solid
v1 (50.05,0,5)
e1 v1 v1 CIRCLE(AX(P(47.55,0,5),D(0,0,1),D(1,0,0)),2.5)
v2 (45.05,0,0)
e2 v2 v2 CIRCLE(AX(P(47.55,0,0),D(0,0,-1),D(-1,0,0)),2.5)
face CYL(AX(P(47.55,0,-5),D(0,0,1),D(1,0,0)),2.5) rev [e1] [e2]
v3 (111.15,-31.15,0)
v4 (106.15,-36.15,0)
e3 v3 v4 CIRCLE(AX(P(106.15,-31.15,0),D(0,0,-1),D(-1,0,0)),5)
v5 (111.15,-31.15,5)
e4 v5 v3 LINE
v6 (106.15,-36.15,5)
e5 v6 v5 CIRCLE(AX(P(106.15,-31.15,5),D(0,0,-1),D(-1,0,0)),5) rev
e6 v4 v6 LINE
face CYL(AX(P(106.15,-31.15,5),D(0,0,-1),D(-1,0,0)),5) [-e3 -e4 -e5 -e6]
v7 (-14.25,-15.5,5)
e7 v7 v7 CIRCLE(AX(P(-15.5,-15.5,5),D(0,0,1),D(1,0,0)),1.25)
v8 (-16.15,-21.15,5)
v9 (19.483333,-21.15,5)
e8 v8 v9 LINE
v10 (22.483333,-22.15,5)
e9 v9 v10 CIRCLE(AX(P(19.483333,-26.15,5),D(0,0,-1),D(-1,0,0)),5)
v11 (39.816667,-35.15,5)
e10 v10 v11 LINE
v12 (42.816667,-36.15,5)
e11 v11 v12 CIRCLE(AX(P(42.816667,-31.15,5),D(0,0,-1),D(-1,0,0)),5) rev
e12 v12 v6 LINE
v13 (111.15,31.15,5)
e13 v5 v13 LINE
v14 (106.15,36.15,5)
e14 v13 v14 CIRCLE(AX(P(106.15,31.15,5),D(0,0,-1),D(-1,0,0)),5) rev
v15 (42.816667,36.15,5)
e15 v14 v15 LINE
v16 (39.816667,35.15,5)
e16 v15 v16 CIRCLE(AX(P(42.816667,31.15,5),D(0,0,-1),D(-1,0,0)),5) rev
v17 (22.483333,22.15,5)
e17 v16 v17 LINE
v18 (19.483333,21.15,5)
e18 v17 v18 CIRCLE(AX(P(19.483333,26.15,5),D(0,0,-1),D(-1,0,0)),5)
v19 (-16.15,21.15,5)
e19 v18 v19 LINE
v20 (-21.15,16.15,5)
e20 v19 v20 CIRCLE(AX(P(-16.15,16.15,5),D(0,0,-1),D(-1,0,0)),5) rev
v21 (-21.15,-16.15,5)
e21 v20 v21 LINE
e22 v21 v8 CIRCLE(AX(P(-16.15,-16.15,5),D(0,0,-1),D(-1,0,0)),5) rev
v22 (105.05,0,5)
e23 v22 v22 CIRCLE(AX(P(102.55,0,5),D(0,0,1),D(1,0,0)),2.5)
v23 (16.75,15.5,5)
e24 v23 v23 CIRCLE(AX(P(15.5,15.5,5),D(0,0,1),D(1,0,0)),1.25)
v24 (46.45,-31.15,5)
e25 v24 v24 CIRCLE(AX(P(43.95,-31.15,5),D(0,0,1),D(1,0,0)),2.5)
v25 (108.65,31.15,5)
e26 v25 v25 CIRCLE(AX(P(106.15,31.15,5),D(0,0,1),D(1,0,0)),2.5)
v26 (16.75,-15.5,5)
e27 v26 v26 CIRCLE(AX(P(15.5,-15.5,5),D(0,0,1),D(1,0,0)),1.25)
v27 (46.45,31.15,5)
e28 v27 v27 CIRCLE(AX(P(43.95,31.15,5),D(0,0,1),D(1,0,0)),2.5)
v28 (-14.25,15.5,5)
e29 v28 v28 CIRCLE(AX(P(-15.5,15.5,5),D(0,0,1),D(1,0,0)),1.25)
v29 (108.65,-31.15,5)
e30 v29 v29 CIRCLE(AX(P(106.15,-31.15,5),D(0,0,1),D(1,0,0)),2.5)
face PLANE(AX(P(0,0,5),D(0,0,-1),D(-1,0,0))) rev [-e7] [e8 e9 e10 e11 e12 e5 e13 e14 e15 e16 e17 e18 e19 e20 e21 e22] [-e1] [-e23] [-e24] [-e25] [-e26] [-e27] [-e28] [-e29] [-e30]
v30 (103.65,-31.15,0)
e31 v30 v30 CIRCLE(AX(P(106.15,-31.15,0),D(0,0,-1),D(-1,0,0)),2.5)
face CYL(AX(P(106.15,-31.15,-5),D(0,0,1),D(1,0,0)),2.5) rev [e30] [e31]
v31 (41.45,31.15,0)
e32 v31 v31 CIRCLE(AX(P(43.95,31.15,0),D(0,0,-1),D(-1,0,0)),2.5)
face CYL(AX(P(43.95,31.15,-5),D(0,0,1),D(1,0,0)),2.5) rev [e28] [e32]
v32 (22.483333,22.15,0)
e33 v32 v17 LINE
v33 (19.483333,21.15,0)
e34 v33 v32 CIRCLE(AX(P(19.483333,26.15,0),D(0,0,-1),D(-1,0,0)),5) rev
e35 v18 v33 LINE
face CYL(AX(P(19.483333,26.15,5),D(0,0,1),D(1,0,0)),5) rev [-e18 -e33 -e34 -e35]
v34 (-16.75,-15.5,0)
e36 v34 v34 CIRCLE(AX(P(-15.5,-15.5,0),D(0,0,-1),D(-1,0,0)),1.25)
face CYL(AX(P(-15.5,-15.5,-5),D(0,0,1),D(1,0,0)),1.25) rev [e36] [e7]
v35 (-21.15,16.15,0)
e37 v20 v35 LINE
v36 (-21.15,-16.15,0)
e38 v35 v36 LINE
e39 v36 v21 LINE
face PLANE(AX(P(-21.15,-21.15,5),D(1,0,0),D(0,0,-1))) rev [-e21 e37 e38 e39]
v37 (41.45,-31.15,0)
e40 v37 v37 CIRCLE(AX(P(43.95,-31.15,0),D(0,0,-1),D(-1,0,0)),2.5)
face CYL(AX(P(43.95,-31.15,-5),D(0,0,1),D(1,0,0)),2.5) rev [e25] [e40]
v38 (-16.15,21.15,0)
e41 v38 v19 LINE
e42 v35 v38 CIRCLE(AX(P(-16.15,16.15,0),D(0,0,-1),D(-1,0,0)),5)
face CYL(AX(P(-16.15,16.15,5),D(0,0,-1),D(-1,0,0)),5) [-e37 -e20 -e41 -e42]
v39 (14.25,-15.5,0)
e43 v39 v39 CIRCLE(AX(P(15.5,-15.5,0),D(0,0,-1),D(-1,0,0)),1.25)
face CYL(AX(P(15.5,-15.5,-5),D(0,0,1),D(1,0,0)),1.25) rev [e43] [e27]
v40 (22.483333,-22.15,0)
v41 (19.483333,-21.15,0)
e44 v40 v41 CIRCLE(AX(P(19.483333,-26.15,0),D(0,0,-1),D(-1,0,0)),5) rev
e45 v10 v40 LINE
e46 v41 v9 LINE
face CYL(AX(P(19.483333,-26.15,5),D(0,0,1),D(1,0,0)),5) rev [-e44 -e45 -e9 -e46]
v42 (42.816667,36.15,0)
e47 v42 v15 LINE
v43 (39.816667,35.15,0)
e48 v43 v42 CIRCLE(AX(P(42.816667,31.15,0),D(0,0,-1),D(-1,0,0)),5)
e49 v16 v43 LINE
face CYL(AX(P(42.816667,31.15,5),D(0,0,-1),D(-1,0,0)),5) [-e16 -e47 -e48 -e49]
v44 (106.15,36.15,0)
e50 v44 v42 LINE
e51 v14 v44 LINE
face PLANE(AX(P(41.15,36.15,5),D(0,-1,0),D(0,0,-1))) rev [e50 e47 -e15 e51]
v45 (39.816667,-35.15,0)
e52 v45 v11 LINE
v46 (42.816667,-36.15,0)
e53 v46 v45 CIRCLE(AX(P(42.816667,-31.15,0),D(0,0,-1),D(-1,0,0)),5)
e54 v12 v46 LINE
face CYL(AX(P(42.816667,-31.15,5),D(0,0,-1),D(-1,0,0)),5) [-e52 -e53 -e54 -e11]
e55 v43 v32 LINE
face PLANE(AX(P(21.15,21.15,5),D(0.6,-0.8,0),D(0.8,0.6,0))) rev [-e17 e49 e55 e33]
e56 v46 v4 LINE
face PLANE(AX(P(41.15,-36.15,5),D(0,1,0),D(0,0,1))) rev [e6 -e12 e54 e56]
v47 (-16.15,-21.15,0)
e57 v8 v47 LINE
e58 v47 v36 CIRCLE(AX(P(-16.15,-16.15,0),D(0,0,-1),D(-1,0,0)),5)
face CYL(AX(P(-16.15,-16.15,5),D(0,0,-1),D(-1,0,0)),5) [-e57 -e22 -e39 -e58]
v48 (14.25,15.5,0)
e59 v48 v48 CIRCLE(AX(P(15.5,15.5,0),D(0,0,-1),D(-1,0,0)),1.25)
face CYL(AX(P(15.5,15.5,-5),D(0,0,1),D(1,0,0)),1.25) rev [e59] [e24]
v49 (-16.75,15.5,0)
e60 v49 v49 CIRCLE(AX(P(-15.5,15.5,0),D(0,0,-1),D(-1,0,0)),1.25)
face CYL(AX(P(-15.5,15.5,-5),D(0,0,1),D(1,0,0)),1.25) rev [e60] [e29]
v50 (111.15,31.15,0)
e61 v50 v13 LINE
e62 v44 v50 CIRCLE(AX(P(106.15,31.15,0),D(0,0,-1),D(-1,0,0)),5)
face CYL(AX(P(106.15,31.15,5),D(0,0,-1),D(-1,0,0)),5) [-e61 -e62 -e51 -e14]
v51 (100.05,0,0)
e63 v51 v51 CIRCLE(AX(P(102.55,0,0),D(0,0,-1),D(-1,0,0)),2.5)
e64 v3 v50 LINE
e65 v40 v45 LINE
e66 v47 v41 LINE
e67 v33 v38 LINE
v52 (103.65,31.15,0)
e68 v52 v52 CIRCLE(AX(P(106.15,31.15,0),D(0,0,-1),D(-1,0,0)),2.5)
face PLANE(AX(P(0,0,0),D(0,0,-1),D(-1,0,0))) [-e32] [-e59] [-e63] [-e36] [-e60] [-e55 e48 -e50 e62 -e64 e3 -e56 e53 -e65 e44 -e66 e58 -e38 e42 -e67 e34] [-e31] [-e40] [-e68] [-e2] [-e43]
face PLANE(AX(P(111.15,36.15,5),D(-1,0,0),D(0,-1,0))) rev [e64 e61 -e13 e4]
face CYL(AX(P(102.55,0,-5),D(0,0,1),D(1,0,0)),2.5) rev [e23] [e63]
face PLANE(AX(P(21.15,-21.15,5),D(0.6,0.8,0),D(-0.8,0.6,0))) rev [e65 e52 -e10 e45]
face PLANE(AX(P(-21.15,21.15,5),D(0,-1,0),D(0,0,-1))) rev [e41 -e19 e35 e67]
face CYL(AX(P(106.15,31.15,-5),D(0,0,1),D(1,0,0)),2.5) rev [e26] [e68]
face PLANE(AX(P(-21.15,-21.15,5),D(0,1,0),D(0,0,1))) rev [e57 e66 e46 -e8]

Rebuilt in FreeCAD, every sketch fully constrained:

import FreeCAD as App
import Part
import Sketcher
from FreeCAD import Vector


def edges_at(feature, points):
    """Names of the edges that pass closest to the given points."""
    edges = feature.Shape.Edges
    near = lambda p: min(range(len(edges)), key=lambda i: edges[i].distToShape(Part.Vertex(*p))[0])
    return sorted({f"Edge{near(p) + 1}" for p in points})

doc = App.newDocument("Part")
body = doc.addObject("PartDesign::Body", "Body")

# Sketch on XY plane
sketch1 = body.newObject("Sketcher::SketchObject", "Sketch")
sketch1.AttachmentSupport = (doc.getObject("XY_Plane"), [""])
sketch1.MapMode = "FlatFace"
sketch1.addGeometry([
    Part.LineSegment(Vector(41, 36, 0), Vector(21, 21, 0)),  # 0
    Part.LineSegment(Vector(21, 21, 0), Vector(-21, 21, 0)),  # 1
    Part.LineSegment(Vector(-21, 21, 0), Vector(-21, -21, 0)),  # 2
    Part.LineSegment(Vector(-21, -21, 0), Vector(21, -21, 0)),  # 3
    Part.LineSegment(Vector(21, -21, 0), Vector(41, -36, 0)),  # 4
    Part.LineSegment(Vector(41, -36, 0), Vector(111, -36, 0)),  # 5
    Part.LineSegment(Vector(111, -36, 0), Vector(111, 36, 0)),  # 6
    Part.LineSegment(Vector(111, 36, 0), Vector(41, 36, 0)),  # 7
], False)
sketch1.addConstraint([
    Sketcher.Constraint("Coincident", 0, 2, 1, 1),
    Sketcher.Constraint("Coincident", 1, 2, 2, 1),
    Sketcher.Constraint("Coincident", 2, 2, 3, 1),
    Sketcher.Constraint("Coincident", 3, 2, 4, 1),
    Sketcher.Constraint("Coincident", 4, 2, 5, 1),
    Sketcher.Constraint("Coincident", 5, 2, 6, 1),
    Sketcher.Constraint("Coincident", 6, 2, 7, 1),
    Sketcher.Constraint("Coincident", 7, 2, 0, 1),
    Sketcher.Constraint("Horizontal", 1),
    Sketcher.Constraint("Vertical", 2),
    Sketcher.Constraint("Horizontal", 3),
    Sketcher.Constraint("Horizontal", 5),
    Sketcher.Constraint("Vertical", 6),
    Sketcher.Constraint("Horizontal", 7),
    Sketcher.Constraint("Symmetric", 0, 2, 2, 2, -1, 1),
    Sketcher.Constraint("Symmetric", 4, 2, 7, 2, -1),
    Sketcher.Constraint("Vertical", 0, 2, 3, 2),
    Sketcher.Constraint("Equal", 3, 2),
    Sketcher.Constraint("DistanceX", 5, 1, 5, 2, 70.0),
    Sketcher.Constraint("Distance", 0, 25.0),
    Sketcher.Constraint("DistanceX", 1, 2, 1, 1, 42.3),
    Sketcher.Constraint("DistanceY", 6, 1, 6, 2, 72.3),
])
pad1 = body.newObject("PartDesign::Pad", "Pad")
pad1.Profile = sketch1
pad1.Length = 5
doc.recompute()

fillet = body.newObject("PartDesign::Fillet", "Fillet")
fillet.Base = (pad1, edges_at(pad1, [(-21.15, -21.15, 2.5)]))
fillet.Radius = 5
doc.recompute()

fillet2 = body.newObject("PartDesign::Fillet", "Fillet001")
fillet2.Base = (fillet, edges_at(fillet, [(-21.15, 21.15, 2.5)]))
fillet2.Radius = 5
doc.recompute()

fillet3 = body.newObject("PartDesign::Fillet", "Fillet002")
fillet3.Base = (fillet2, edges_at(fillet2, [(21.15, 21.15, 2.5)]))
fillet3.Radius = 5
doc.recompute()

fillet4 = body.newObject("PartDesign::Fillet", "Fillet003")
fillet4.Base = (fillet3, edges_at(fillet3, [(21.15, -21.15, 2.5)]))
fillet4.Radius = 5
doc.recompute()

fillet5 = body.newObject("PartDesign::Fillet", "Fillet004")
fillet5.Base = (fillet4, edges_at(fillet4, [(41.15, -36.15, 2.5)]))
fillet5.Radius = 5
doc.recompute()

fillet6 = body.newObject("PartDesign::Fillet", "Fillet005")
fillet6.Base = (fillet5, edges_at(fillet5, [(41.15, 36.15, 2.5)]))
fillet6.Radius = 5
doc.recompute()

fillet7 = body.newObject("PartDesign::Fillet", "Fillet006")
fillet7.Base = (fillet6, edges_at(fillet6, [(111.15, 36.15, 2.5)]))
fillet7.Radius = 5
doc.recompute()

fillet8 = body.newObject("PartDesign::Fillet", "Fillet007")
fillet8.Base = (fillet7, edges_at(fillet7, [(111.15, -36.15, 2.5)]))
fillet8.Radius = 5

# Sketch on XY plane
sketch2 = body.newObject("Sketcher::SketchObject", "Sketch001")
sketch2.AttachmentSupport = (doc.getObject("XY_Plane"), [""])
sketch2.MapMode = "FlatFace"
sketch2.AttachmentOffset = App.Placement(Vector(0, 0, 5), App.Rotation())
sketch2.addGeometry([
    Part.Circle(Vector(-15.5, -15.5, 0), Vector(0, 0, 1), 1.2),  # 0
    Part.Circle(Vector(-15.5, 15.5, 0), Vector(0, 0, 1), 1.2),  # 1
    Part.Circle(Vector(15.5, 15.5, 0), Vector(0, 0, 1), 1.2),  # 2
    Part.Circle(Vector(15.5, -15.5, 0), Vector(0, 0, 1), 1.2),  # 3
    Part.Circle(Vector(106.2, 31.1, 0), Vector(0, 0, 1), 2.5),  # 4
    Part.Circle(Vector(106.2, -31.1, 0), Vector(0, 0, 1), 2.5),  # 5
    Part.Circle(Vector(44, -31.1, 0), Vector(0, 0, 1), 2.5),  # 6
    Part.Circle(Vector(44, 31.1, 0), Vector(0, 0, 1), 2.5),  # 7
    Part.Circle(Vector(102.5, 0, 0), Vector(0, 0, 1), 2.5),  # 8
    Part.Circle(Vector(47.5, 0, 0), Vector(0, 0, 1), 2.5),  # 9
], False)
sketch2.addConstraint([
    Sketcher.Constraint("Equal", 0, 1),
    Sketcher.Constraint("Equal", 1, 2),
    Sketcher.Constraint("Equal", 2, 3),
    Sketcher.Constraint("Equal", 4, 5),
    Sketcher.Constraint("Equal", 5, 6),
    Sketcher.Constraint("Equal", 6, 7),
    Sketcher.Constraint("Equal", 7, 8),
    Sketcher.Constraint("Equal", 8, 9),
    Sketcher.Constraint("Symmetric", 0, 3, 2, 3, -1, 1),
    Sketcher.Constraint("Symmetric", 1, 3, 3, 3, -1, 1),
    Sketcher.Constraint("Symmetric", 1, 3, 2, 3, -2),
    Sketcher.Constraint("Symmetric", 4, 3, 5, 3, -1),
    Sketcher.Constraint("Symmetric", 6, 3, 7, 3, -1),
    Sketcher.Constraint("PointOnObject", 8, 3, -1),
    Sketcher.Constraint("PointOnObject", 9, 3, -1),
    Sketcher.Constraint("Horizontal", 5, 3, 6, 3),
    Sketcher.Constraint("Diameter", 4, 5.0),
    Sketcher.Constraint("Diameter", 0, 2.5),
    Sketcher.Constraint("DistanceY", 0, 3, 1, 3, 31.0),
    Sketcher.Constraint("DistanceX", 1, 3, 2, 3, 31.0),
    Sketcher.Constraint("DistanceX", 9, 3, 8, 3, 55.0),
    Sketcher.Constraint("DistanceY", 5, 3, 4, 3, 62.3),
    Sketcher.Constraint("DistanceX", 6, 3, 5, 3, 62.2),
    Sketcher.Constraint("DistanceX", 8, 3, 4, 3, 3.6),
    Sketcher.Constraint("DistanceX", -1, 1, 4, 3, 106.15),
])
pocket1 = body.newObject("PartDesign::Pocket", "Pocket")
pocket1.Profile = sketch2
pocket1.Length = 10

doc.recompute()
